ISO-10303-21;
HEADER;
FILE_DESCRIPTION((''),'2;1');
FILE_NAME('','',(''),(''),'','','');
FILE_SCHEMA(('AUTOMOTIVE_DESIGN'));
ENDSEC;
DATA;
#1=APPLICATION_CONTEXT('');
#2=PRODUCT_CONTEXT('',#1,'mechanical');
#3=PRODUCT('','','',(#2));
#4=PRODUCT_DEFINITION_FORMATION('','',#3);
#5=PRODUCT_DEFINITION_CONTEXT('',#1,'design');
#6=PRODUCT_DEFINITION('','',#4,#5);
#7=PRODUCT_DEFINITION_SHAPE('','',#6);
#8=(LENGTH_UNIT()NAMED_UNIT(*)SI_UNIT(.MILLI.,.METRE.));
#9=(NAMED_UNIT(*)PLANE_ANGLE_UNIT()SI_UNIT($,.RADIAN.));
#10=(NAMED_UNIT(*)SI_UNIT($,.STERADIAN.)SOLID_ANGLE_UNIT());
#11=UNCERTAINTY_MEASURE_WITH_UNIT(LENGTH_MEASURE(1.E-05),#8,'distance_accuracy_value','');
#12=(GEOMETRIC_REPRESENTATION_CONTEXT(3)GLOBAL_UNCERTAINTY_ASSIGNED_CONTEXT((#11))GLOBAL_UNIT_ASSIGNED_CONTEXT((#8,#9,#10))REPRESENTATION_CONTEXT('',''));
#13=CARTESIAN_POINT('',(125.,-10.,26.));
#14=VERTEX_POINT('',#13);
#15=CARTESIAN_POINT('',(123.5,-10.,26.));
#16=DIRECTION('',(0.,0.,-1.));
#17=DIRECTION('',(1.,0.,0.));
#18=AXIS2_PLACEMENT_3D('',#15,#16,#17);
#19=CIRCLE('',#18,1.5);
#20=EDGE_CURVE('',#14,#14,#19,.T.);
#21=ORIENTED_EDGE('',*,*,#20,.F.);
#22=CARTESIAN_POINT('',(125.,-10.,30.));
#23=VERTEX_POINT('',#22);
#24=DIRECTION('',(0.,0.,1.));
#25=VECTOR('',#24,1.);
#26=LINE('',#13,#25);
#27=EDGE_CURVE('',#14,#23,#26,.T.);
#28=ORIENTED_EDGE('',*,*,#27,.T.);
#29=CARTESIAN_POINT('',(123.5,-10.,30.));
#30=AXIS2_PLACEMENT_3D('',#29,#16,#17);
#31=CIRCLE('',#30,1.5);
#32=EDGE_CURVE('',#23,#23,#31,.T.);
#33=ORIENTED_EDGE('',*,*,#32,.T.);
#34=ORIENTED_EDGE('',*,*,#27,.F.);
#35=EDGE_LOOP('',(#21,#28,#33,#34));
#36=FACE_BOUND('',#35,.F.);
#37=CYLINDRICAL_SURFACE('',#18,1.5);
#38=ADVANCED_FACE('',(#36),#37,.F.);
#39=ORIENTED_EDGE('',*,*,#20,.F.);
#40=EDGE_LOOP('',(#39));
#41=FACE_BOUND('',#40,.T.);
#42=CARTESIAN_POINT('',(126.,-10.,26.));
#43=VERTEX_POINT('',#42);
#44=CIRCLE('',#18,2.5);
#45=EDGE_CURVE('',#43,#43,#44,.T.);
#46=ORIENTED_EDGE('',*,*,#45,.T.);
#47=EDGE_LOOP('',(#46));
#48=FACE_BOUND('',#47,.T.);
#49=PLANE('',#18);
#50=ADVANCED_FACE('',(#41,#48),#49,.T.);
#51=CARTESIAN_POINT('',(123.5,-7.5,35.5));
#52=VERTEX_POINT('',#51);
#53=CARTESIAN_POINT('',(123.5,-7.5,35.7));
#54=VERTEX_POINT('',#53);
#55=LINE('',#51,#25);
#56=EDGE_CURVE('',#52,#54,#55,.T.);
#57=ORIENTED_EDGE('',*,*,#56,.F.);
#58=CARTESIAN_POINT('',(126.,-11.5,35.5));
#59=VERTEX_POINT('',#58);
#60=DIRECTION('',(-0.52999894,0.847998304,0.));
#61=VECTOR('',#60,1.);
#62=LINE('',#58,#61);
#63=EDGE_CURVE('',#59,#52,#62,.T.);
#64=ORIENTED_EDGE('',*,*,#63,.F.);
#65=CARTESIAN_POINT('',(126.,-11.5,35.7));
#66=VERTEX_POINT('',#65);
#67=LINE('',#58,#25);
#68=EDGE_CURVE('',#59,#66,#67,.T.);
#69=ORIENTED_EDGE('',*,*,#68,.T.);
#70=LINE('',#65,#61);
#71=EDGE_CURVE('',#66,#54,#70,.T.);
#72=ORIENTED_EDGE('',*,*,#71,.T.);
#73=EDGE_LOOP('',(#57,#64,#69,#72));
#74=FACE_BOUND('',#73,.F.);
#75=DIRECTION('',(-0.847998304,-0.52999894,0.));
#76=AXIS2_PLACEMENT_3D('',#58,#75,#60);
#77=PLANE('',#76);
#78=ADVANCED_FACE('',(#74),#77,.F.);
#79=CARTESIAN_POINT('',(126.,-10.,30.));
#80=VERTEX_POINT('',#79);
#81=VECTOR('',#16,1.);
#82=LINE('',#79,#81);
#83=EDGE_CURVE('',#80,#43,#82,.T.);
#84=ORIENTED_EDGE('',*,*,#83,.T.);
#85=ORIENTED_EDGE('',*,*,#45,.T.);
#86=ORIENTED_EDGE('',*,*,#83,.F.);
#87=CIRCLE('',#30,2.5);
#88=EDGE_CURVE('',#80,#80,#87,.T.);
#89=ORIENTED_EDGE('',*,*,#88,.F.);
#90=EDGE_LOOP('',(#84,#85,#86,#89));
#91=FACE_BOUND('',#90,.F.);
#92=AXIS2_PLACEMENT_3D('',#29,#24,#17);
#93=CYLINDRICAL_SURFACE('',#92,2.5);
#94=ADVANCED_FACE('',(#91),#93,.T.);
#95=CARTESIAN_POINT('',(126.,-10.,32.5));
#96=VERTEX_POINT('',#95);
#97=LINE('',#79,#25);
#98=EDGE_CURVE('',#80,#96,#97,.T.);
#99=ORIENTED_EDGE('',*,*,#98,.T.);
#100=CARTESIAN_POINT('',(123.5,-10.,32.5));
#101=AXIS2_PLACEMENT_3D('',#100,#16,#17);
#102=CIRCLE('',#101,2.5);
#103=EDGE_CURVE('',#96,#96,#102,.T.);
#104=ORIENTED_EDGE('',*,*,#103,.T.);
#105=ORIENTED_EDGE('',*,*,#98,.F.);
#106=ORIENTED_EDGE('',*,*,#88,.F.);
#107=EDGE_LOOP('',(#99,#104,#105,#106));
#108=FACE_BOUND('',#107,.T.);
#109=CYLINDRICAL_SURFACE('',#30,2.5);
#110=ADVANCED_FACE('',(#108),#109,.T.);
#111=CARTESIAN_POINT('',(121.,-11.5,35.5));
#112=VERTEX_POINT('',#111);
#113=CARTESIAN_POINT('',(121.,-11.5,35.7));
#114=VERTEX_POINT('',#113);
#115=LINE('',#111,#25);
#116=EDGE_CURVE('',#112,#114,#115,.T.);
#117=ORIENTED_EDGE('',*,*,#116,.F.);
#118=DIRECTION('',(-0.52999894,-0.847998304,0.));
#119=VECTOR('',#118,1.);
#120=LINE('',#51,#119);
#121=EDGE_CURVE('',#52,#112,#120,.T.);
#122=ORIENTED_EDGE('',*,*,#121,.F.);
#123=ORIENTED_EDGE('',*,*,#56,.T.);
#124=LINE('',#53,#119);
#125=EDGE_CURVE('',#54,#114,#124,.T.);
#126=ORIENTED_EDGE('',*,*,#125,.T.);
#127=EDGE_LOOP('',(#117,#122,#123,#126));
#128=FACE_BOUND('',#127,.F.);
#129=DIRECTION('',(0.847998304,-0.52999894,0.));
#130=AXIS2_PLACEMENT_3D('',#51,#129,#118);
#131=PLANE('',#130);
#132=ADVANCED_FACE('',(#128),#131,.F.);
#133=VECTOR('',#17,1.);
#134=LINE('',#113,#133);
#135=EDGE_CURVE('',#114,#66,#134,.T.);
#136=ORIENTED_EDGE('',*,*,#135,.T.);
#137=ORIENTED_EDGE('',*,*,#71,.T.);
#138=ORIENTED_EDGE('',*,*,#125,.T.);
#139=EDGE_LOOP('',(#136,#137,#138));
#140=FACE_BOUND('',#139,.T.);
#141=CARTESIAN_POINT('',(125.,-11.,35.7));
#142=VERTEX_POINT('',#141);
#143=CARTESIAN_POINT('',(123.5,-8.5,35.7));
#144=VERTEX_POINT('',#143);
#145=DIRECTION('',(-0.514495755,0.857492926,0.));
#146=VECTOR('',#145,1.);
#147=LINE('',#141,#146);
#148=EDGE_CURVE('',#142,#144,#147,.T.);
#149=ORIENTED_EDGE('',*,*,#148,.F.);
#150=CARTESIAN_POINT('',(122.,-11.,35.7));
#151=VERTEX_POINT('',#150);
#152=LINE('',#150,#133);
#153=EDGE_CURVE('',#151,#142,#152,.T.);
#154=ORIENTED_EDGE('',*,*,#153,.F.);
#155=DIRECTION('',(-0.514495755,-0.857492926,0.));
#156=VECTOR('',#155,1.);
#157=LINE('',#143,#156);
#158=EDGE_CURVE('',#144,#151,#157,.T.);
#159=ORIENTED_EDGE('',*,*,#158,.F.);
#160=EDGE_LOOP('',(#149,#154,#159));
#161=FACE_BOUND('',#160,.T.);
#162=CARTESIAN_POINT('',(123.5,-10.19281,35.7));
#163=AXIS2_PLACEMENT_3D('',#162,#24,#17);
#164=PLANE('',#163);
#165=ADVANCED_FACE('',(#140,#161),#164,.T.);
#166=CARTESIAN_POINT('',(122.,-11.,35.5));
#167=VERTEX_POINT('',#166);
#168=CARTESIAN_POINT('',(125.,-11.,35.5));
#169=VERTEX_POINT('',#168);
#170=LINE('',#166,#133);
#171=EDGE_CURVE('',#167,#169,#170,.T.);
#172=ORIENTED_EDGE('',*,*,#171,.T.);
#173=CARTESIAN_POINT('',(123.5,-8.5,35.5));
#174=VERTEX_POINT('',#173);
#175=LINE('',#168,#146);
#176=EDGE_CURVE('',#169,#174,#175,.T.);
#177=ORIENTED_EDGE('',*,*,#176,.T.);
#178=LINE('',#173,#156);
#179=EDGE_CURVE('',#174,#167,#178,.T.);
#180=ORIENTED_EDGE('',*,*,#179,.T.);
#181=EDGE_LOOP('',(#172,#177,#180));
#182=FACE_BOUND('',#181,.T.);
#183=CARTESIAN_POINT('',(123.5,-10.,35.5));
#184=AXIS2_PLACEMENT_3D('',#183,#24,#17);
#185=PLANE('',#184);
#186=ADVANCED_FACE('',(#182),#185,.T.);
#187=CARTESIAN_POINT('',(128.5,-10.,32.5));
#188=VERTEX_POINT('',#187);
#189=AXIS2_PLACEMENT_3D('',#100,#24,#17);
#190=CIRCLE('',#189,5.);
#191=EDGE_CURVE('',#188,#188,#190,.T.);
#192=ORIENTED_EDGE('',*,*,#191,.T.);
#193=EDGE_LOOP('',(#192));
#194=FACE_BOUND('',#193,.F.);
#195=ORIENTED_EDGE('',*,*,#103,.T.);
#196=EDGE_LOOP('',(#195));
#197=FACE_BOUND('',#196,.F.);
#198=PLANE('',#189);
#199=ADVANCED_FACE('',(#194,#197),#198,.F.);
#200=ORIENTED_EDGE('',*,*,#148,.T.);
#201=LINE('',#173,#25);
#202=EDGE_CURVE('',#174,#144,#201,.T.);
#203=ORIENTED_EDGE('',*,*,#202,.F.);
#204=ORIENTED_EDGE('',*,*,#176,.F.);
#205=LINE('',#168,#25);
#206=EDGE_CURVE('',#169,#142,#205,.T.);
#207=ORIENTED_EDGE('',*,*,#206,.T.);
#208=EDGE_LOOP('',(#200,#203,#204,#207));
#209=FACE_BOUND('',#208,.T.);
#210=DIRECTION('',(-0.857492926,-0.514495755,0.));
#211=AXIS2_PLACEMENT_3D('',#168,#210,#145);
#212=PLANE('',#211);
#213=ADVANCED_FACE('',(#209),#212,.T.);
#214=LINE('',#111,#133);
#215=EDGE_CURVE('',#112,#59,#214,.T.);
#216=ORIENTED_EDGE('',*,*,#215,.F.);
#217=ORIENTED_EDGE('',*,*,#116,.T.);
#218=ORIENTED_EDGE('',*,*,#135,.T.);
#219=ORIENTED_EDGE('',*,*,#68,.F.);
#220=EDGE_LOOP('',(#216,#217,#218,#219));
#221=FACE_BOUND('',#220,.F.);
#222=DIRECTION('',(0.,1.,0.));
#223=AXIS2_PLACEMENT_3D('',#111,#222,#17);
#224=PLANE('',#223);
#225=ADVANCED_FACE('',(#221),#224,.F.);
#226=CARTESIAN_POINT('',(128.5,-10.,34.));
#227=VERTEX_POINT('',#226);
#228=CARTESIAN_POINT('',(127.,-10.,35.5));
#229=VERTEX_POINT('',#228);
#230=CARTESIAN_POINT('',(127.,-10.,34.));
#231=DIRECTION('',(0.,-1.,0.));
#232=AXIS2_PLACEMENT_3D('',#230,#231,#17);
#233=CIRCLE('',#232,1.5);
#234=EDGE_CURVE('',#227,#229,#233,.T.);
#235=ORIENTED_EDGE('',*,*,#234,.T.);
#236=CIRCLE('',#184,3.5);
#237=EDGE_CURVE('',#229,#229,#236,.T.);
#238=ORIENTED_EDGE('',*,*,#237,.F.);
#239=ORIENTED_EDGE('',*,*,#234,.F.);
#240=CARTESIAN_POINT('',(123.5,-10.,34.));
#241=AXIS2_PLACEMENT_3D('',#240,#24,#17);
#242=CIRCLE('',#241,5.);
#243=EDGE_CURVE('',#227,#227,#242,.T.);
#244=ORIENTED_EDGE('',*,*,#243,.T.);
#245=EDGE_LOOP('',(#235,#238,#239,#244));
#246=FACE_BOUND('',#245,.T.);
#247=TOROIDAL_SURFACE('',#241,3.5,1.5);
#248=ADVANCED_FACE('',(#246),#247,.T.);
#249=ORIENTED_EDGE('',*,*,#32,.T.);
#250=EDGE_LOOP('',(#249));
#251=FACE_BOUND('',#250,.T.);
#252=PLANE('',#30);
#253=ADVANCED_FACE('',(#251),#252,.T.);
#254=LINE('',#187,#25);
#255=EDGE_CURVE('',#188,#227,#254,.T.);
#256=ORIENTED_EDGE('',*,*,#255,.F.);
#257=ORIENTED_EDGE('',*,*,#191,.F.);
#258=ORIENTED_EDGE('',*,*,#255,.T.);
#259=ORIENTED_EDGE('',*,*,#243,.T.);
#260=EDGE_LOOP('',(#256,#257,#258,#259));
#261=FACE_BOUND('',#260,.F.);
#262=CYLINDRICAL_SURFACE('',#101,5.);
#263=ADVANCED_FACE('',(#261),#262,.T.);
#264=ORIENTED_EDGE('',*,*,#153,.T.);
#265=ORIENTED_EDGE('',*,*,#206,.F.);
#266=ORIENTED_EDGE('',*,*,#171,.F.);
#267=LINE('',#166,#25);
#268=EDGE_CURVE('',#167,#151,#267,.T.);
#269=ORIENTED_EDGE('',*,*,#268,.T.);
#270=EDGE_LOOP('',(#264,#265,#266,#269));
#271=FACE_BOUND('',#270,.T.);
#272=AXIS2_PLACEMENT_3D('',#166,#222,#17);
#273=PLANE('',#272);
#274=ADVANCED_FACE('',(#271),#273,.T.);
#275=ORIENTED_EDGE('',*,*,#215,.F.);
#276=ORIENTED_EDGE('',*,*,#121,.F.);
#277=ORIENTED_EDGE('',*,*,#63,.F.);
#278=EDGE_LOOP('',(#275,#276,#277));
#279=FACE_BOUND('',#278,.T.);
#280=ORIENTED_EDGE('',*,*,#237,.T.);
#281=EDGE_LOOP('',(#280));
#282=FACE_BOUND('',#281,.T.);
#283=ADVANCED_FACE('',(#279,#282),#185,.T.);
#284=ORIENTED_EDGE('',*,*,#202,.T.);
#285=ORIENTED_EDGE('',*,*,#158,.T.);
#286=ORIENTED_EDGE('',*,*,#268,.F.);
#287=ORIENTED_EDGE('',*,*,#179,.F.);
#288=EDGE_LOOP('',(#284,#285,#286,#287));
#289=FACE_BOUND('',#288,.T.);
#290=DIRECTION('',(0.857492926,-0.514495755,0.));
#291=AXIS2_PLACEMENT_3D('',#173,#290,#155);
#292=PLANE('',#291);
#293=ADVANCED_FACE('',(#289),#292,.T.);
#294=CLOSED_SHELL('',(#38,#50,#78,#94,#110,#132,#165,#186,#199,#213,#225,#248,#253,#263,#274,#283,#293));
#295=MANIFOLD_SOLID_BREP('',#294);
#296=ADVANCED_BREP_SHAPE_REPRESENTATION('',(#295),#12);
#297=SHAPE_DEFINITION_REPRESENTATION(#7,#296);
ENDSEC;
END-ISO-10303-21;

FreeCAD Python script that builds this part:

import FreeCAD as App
import Part
import Sketcher

V = App.Vector


def edges_at(feature, points):
    """Names of the edges that pass closest to the given points."""
    edges = feature.Shape.Edges
    near = lambda p: min(range(len(edges)), key=lambda i: edges[i].distToShape(Part.Vertex(*p))[0])
    return sorted({f"Edge{near(p) + 1}" for p in points})

doc = App.newDocument("Part")
params = doc.addObject("Spreadsheet::Sheet", "Params")
for row, (alias, value) in enumerate([
    ("sketch1_diameter", "5 mm"),
    ("pad1_length", "2.5 mm"),
    ("sketch2_diameter", "10 mm"),
    ("pad2_length", "3 mm"),
    ("fillet_radius", "1.5 mm"),
    ("sketch3_diameter", "5 mm"),
    ("pad3_length", "4 mm"),
    ("sketch4_diameter", "3 mm"),
    ("pocket1_length", "4 mm"),
    ("sketch5_width", "5 mm"),
    ("sketch5_width2", "3 mm"),
    ("pad4_length", "0.2 mm"),
], start=1):
    params.set(f"A{row}", alias)
    params.set(f"B{row}", "=" + value)
    params.setAlias(f"B{row}", alias)

body = doc.addObject("PartDesign::Body", "Body")

# Sketch on XY plane
sketch1 = body.newObject("Sketcher::SketchObject", "Sketch")
sketch1.AttachmentSupport = (doc.getObject("XY_Plane"), [""])
sketch1.MapMode = "FlatFace"
sketch1.AttachmentOffset = App.Placement(V(0, 0, 30), App.Rotation())
sketch1.addGeometry(Part.Circle(V(101, -55, 0), V(0, 0, 1), 2.5), False)
sketch1.addConstraint(Sketcher.Constraint("Diameter", 0, 5.0))
sketch1.addConstraint(Sketcher.Constraint("DistanceX", -1, 1, 0, 3, 101.0))
sketch1.addConstraint(Sketcher.Constraint("DistanceY", 0, 3, -1, 1, 55.0))
sketch1.setExpression("Constraints[0]", "Params.sketch1_diameter")
pad1 = body.newObject("PartDesign::Pad", "Pad")
pad1.Profile = sketch1
pad1.setExpression("Length", "Params.pad1_length")

# Sketch on XY plane
sketch2 = body.newObject("Sketcher::SketchObject", "Sketch001")
sketch2.AttachmentSupport = (doc.getObject("XY_Plane"), [""])
sketch2.MapMode = "FlatFace"
sketch2.AttachmentOffset = App.Placement(V(0, 0, 32.5), App.Rotation())
sketch2.addGeometry(Part.Circle(V(101, -55, 0), V(0, 0, 1), 5), False)
sketch2.addConstraint(Sketcher.Constraint("Diameter", 0, 10.0))
sketch2.addConstraint(Sketcher.Constraint("DistanceX", -1, 1, 0, 3, 101.0))
sketch2.addConstraint(Sketcher.Constraint("DistanceY", 0, 3, -1, 1, 55.0))
sketch2.setExpression("Constraints[0]", "Params.sketch2_diameter")
pad2 = body.newObject("PartDesign::Pad", "Pad001")
pad2.Profile = sketch2
pad2.setExpression("Length", "Params.pad2_length")
doc.recompute()

fillet = body.newObject("PartDesign::Fillet", "Fillet")
fillet.Base = (pad2, edges_at(pad2, [(96, -55, 35.5)]))
fillet.setExpression("Radius", "Params.fillet_radius")

# Sketch on XY plane
sketch3 = body.newObject("Sketcher::SketchObject", "Sketch002")
sketch3.AttachmentSupport = (doc.getObject("XY_Plane"), [""])
sketch3.MapMode = "FlatFace"
sketch3.AttachmentOffset = App.Placement(V(0, 0, 30), App.Rotation())
sketch3.addGeometry(Part.Circle(V(101, -55, 0), V(0, 0, 1), 2.5), False)
sketch3.addConstraint(Sketcher.Constraint("Diameter", 0, 5.0))
sketch3.addConstraint(Sketcher.Constraint("DistanceX", -1, 1, 0, 3, 101.0))
sketch3.addConstraint(Sketcher.Constraint("DistanceY", 0, 3, -1, 1, 55.0))
sketch3.setExpression("Constraints[0]", "Params.sketch3_diameter")
pad3 = body.newObject("PartDesign::Pad", "Pad002")
pad3.Profile = sketch3
pad3.setExpression("Length", "Params.pad3_length")
pad3.Reversed = True

# Sketch on XY plane
sketch4 = body.newObject("Sketcher::SketchObject", "Sketch003")
sketch4.AttachmentSupport = (doc.getObject("XY_Plane"), [""])
sketch4.MapMode = "FlatFace"
sketch4.AttachmentOffset = App.Placement(V(0, 0, 26), App.Rotation())
sketch4.addGeometry(Part.Circle(V(101, -55, 0), V(0, 0, 1), 1.5), False)
sketch4.addConstraint(Sketcher.Constraint("Diameter", 0, 3.0))
sketch4.addConstraint(Sketcher.Constraint("DistanceX", -1, 1, 0, 3, 101.0))
sketch4.addConstraint(Sketcher.Constraint("DistanceY", 0, 3, -1, 1, 55.0))
sketch4.setExpression("Constraints[0]", "Params.sketch4_diameter")
pocket1 = body.newObject("PartDesign::Pocket", "Pocket")
pocket1.Profile = sketch4
pocket1.setExpression("Length", "Params.pocket1_length")
pocket1.Reversed = True
body2 = doc.addObject("PartDesign::Body", "Body001")
doc.recompute()

body.Placement = App.Placement(V(75, 0, 0), App.Rotation(V(0, 0, 1), 0))
boolean = body2.newObject("PartDesign::Boolean", "Boolean")
boolean.Type = "Fuse"
boolean.addObjects([body])

# Sketch on XY plane
sketch5 = body2.newObject("Sketcher::SketchObject", "Sketch004")
sketch5.AttachmentSupport = (doc.getObject("XY_Plane001"), [""])
sketch5.MapMode = "FlatFace"
sketch5.AttachmentOffset = App.Placement(V(0, 0, 35.5), App.Rotation())
sketch5.addGeometry(Part.LineSegment(V(173.5, -56.5, 0), V(178.5, -56.5, 0)), False)
sketch5.addGeometry(Part.LineSegment(V(178.5, -56.5, 0), V(176, -52.5, 0)), False)
sketch5.addGeometry(Part.LineSegment(V(176, -52.5, 0), V(173.5, -56.5, 0)), False)
sketch5.addGeometry(Part.LineSegment(V(174.5, -56, 0), V(176, -53.5, 0)), False)
sketch5.addGeometry(Part.LineSegment(V(176, -53.5, 0), V(177.5, -56, 0)), False)
sketch5.addGeometry(Part.LineSegment(V(177.5, -56, 0), V(174.5, -56, 0)), False)
sketch5.addConstraint(Sketcher.Constraint("Coincident", 0, 2, 1, 1))
sketch5.addConstraint(Sketcher.Constraint("Coincident", 1, 2, 2, 1))
sketch5.addConstraint(Sketcher.Constraint("Coincident", 2, 2, 0, 1))
sketch5.addConstraint(Sketcher.Constraint("Coincident", 3, 2, 4, 1))
sketch5.addConstraint(Sketcher.Constraint("Coincident", 4, 2, 5, 1))
sketch5.addConstraint(Sketcher.Constraint("Coincident", 5, 2, 3, 1))
sketch5.addConstraint(Sketcher.Constraint("Horizontal", 0))
sketch5.addConstraint(Sketcher.Constraint("Horizontal", 5))
sketch5.addConstraint(Sketcher.Constraint("Vertical", 1, 2, 3, 2))
sketch5.addConstraint(Sketcher.Constraint("Equal", 1, 2))
sketch5.addConstraint(Sketcher.Constraint("Equal", 3, 4))
sketch5.addConstraint(Sketcher.Constraint("DistanceX", 0, 1, 0, 2, 5.0))
sketch5.addConstraint(Sketcher.Constraint("DistanceX", 5, 2, 5, 1, 3.0))
sketch5.addConstraint(Sketcher.Constraint("DistanceX", -1, 1, 1, 2, 176.0))
sketch5.addConstraint(Sketcher.Constraint("DistanceY", 4, 2, -1, 1, 56.0))
sketch5.addConstraint(Sketcher.Constraint("DistanceY", 0, 2, 1, 2, 4.0))
sketch5.addConstraint(Sketcher.Constraint("DistanceY", 3, 2, 1, 2, 1.0))
sketch5.addConstraint(Sketcher.Constraint("DistanceY", 0, 2, -1, 1, 56.5))
sketch5.setExpression("Constraints[11]", "Params.sketch5_width")
sketch5.setExpression("Constraints[12]", "Params.sketch5_width2")
pad4 = body2.newObject("PartDesign::Pad", "Pad003")
pad4.Profile = sketch5
pad4.setExpression("Length", "Params.pad4_length")
body3 = doc.addObject("PartDesign::Body", "Body002")
doc.recompute()

body2.Placement = App.Placement(V(-52.5, 45, 0), App.Rotation(V(0, 0, 1), 0))
boolean2 = body3.newObject("PartDesign::Boolean", "Boolean001")
boolean2.Type = "Fuse"
boolean2.addObjects([body2])

doc.recompute()
